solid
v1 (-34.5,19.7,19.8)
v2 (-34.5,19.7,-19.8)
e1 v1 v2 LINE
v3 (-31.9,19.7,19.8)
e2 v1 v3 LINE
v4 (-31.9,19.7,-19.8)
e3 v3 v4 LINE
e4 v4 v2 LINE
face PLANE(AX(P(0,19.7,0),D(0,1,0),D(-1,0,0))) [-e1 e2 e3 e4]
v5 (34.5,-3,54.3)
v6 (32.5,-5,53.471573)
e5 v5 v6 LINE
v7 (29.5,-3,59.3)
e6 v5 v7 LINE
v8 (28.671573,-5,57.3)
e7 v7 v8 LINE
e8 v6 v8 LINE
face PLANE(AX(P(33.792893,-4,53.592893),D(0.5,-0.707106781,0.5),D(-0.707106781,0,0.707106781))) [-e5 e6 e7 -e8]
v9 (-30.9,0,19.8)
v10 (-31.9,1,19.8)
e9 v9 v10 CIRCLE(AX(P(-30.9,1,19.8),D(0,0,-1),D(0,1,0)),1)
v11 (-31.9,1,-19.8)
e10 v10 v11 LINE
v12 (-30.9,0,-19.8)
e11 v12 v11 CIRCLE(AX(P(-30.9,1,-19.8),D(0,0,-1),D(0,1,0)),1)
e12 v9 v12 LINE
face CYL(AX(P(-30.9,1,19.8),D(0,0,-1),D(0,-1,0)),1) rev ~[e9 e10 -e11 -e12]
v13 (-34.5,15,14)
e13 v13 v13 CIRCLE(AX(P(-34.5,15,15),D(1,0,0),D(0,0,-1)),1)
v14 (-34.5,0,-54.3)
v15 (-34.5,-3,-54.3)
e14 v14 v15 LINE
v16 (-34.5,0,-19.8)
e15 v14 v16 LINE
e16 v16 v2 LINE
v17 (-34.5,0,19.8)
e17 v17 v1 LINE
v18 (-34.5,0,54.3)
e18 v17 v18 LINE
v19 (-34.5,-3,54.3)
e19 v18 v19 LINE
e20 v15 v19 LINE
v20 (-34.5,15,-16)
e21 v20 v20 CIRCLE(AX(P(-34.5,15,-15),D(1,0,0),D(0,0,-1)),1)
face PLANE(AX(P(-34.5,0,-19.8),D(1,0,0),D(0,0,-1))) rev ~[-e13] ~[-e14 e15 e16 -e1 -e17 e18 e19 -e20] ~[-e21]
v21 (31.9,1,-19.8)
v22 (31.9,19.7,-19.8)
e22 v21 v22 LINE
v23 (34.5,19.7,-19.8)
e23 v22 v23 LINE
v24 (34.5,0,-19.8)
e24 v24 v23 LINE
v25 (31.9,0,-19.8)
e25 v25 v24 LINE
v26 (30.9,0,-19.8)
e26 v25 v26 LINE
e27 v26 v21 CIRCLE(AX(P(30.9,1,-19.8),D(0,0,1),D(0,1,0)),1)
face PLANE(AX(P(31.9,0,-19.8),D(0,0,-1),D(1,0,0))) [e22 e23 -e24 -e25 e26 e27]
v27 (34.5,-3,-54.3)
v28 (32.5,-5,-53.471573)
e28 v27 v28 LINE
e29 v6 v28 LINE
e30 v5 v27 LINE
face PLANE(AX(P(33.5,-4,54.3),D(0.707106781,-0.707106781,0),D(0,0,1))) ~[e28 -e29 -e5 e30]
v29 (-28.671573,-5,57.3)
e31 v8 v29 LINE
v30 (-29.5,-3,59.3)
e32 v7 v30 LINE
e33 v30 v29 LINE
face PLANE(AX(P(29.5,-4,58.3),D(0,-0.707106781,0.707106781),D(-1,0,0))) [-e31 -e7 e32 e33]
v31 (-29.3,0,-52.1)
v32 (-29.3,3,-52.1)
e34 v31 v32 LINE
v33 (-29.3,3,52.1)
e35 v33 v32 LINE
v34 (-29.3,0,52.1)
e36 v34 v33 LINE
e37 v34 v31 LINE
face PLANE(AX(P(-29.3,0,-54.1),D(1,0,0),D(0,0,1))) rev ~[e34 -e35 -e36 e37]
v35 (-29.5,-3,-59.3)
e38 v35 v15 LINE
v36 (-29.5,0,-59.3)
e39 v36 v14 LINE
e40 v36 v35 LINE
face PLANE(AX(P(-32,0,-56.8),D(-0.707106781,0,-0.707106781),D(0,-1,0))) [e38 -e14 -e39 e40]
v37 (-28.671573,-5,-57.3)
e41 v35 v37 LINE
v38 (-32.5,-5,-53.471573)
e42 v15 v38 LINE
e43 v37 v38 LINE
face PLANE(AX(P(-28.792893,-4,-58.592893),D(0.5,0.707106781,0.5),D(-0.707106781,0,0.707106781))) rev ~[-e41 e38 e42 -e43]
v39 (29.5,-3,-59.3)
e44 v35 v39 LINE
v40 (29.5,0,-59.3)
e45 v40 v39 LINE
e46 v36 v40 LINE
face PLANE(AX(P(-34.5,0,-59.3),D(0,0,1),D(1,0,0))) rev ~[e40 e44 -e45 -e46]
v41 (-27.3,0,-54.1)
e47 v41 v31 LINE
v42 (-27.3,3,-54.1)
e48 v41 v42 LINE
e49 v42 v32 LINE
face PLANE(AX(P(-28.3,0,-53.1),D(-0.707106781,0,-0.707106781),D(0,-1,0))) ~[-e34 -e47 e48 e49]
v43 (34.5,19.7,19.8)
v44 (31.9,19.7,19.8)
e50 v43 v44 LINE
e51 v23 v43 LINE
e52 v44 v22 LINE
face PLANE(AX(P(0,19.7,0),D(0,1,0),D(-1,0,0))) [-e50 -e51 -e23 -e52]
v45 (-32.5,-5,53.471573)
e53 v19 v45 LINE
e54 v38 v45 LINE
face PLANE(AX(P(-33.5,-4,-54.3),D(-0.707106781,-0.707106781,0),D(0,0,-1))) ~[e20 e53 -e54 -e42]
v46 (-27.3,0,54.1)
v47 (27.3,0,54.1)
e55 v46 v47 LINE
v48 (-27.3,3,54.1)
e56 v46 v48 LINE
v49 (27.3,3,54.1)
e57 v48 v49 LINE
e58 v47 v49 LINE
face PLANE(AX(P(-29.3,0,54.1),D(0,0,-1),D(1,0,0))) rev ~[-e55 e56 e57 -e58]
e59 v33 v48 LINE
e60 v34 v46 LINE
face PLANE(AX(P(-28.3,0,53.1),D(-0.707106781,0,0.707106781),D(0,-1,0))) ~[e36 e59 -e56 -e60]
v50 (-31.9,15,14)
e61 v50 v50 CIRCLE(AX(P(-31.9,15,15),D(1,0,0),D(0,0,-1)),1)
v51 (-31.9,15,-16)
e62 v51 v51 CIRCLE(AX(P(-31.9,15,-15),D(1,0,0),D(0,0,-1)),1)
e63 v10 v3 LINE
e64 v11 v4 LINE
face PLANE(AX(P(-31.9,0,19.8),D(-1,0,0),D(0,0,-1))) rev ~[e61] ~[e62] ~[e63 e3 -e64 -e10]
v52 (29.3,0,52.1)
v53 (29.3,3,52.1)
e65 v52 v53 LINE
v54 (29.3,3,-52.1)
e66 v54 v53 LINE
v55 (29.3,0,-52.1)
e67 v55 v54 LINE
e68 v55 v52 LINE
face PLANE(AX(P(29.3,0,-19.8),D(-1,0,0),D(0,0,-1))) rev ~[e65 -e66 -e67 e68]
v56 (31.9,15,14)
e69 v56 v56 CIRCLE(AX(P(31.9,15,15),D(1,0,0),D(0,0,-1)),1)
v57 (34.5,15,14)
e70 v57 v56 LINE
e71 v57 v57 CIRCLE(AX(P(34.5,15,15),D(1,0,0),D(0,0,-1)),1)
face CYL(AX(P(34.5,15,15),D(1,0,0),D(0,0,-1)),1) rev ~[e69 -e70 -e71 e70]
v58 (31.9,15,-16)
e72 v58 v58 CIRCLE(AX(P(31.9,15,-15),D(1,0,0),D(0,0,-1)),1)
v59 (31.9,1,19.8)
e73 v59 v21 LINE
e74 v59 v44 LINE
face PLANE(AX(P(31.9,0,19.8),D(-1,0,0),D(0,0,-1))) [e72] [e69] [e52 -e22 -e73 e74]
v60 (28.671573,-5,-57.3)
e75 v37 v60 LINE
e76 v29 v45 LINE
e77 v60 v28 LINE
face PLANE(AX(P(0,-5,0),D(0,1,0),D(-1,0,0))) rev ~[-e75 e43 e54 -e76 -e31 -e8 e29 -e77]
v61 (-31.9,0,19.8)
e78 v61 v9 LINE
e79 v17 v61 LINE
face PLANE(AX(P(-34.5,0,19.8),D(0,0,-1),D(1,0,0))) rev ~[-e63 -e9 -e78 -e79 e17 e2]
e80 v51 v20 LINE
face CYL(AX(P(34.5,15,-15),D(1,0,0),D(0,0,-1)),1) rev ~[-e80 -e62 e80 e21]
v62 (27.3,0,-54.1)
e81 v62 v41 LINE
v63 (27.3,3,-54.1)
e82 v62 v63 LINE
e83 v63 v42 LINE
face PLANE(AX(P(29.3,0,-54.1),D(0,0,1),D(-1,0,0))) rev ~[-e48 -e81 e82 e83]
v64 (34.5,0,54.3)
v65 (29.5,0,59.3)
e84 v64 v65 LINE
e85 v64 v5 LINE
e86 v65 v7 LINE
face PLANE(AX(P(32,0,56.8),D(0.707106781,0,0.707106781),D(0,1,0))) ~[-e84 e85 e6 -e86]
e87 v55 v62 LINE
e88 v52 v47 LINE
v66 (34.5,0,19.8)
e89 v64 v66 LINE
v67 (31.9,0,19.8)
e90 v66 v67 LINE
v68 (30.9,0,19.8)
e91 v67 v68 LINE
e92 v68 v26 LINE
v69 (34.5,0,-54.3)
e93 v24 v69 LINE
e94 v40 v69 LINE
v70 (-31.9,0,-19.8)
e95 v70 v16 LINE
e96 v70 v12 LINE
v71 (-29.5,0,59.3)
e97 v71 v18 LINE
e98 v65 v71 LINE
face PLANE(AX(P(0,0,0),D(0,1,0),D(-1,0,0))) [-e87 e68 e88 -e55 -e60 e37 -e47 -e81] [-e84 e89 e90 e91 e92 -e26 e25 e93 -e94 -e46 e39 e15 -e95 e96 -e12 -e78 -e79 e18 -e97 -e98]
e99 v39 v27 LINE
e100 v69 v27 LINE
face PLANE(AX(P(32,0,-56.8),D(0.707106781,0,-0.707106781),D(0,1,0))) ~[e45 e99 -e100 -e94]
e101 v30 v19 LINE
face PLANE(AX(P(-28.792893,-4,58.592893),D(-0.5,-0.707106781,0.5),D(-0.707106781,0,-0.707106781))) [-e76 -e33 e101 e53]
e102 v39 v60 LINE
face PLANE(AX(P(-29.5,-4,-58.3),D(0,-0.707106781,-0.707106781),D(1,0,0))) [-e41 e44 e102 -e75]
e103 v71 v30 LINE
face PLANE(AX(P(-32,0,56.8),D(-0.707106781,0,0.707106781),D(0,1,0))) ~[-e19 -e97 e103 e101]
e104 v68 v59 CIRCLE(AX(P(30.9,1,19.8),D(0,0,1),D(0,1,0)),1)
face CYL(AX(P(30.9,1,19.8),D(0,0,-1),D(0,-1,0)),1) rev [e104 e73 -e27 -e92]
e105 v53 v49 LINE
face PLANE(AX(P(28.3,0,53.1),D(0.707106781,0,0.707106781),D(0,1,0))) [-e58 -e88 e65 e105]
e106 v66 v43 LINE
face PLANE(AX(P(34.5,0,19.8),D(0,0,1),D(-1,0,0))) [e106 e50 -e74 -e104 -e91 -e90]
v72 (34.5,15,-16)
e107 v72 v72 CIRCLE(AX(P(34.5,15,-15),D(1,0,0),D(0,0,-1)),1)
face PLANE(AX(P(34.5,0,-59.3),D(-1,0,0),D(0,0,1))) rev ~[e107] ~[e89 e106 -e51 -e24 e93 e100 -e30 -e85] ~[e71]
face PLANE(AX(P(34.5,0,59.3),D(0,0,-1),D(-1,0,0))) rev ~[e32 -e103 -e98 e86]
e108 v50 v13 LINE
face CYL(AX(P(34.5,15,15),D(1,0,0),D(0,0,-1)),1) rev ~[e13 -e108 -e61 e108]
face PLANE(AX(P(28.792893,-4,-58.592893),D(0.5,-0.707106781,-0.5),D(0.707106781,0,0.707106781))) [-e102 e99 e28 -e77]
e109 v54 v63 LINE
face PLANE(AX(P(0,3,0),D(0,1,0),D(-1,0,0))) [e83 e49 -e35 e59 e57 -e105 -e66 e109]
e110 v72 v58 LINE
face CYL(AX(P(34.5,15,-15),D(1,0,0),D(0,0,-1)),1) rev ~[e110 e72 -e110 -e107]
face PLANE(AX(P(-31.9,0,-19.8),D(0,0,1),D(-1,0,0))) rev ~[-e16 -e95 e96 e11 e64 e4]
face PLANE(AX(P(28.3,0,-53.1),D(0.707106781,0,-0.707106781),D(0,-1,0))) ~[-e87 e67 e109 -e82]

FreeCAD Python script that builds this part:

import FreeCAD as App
import Part
import Sketcher
Q = App.Units.Quantity


def edges_at(feature, points):
    """Names of the edges that pass closest to the given points."""
    edges = feature.Shape.Edges
    near = lambda p: min(range(len(edges)), key=lambda i: edges[i].distToShape(Part.Vertex(*p))[0])
    return sorted({f"Edge{near(p) + 1}" for p in points})

doc = App.newDocument("Part")
body = doc.addObject("PartDesign::Body", "Body")

# Sketch on XZ plane
sketch1 = body.newObject("Sketcher::SketchObject", "Sketch")
sketch1.AttachmentSupport = (doc.getObject("XZ_Plane"), [""])
sketch1.MapMode = "FlatFace"
sketch1.addGeometry([
    Part.LineSegment(App.Vector(-34, -59, 0), App.Vector(-34, 59, 0)),
    Part.LineSegment(App.Vector(-34, 59, 0), App.Vector(34, 59, 0)),
    Part.LineSegment(App.Vector(34, 59, 0), App.Vector(34, -59, 0)),
    Part.LineSegment(App.Vector(34, -59, 0), App.Vector(-34, -59, 0)),
], False)
sketch1.addConstraint([
    Sketcher.Constraint("Coincident", 0, 2, 1, 1),
    Sketcher.Constraint("Coincident", 1, 2, 2, 1),
    Sketcher.Constraint("Coincident", 2, 2, 3, 1),
    Sketcher.Constraint("Coincident", 3, 2, 0, 1),
    Sketcher.Constraint("Vertical", 0),
    Sketcher.Constraint("Horizontal", 1),
    Sketcher.Constraint("Vertical", 2),
    Sketcher.Constraint("Horizontal", 3),
    Sketcher.Constraint("Symmetric", 0, 2, 2, 2, -1, 1),
    Sketcher.Constraint("DistanceX", 1, 1, 1, 2, Q("69 mm")),
    Sketcher.Constraint("DistanceY", 0, 1, 0, 2, Q("118.6 mm")),
])
pad1 = body.newObject("PartDesign::Pad", "Pad")
pad1.Profile = sketch1
pad1.Length = 5

# Sketch on XZ plane
sketch2 = body.newObject("Sketcher::SketchObject", "Sketch001")
sketch2.AttachmentSupport = (doc.getObject("XZ_Plane"), [""])
sketch2.MapMode = "FlatFace"
sketch2.addGeometry([
    Part.LineSegment(App.Vector(34.5, -19.8, 0), App.Vector(31.9, -19.8, 0)),  # 0
    Part.LineSegment(App.Vector(31.9, -19.8, 0), App.Vector(31.9, 19.8, 0)),  # 1
    Part.LineSegment(App.Vector(31.9, 19.8, 0), App.Vector(34.5, 19.8, 0)),  # 2
    Part.LineSegment(App.Vector(34.5, 19.8, 0), App.Vector(34.5, -19.8, 0)),  # 3
    Part.LineSegment(App.Vector(-31.9, 19.8, 0), App.Vector(-31.9, -19.8, 0)),  # 4
    Part.LineSegment(App.Vector(-31.9, -19.8, 0), App.Vector(-34.5, -19.8, 0)),  # 5
    Part.LineSegment(App.Vector(-34.5, -19.8, 0), App.Vector(-34.5, 19.8, 0)),  # 6
    Part.LineSegment(App.Vector(-34.5, 19.8, 0), App.Vector(-31.9, 19.8, 0)),  # 7
], False)
sketch2.addConstraint([
    Sketcher.Constraint("Coincident", 0, 2, 1, 1),
    Sketcher.Constraint("Coincident", 1, 2, 2, 1),
    Sketcher.Constraint("Coincident", 2, 2, 3, 1),
    Sketcher.Constraint("Coincident", 3, 2, 0, 1),
    Sketcher.Constraint("Coincident", 4, 2, 5, 1),
    Sketcher.Constraint("Coincident", 5, 2, 6, 1),
    Sketcher.Constraint("Coincident", 6, 2, 7, 1),
    Sketcher.Constraint("Coincident", 7, 2, 4, 1),
    Sketcher.Constraint("Horizontal", 0),
    Sketcher.Constraint("Vertical", 1),
    Sketcher.Constraint("Horizontal", 2),
    Sketcher.Constraint("Vertical", 3),
    Sketcher.Constraint("Vertical", 4),
    Sketcher.Constraint("Horizontal", 5),
    Sketcher.Constraint("Vertical", 6),
    Sketcher.Constraint("Horizontal", 7),
    Sketcher.Constraint("Symmetric", 1, 2, 4, 2, -1, 1),
    Sketcher.Constraint("Symmetric", 3, 2, 6, 2, -1, 1),
    Sketcher.Constraint("Horizontal", 3, 2, 4, 2),
    Sketcher.Constraint("DistanceY", 1, 1, 1, 2, Q("39.6 mm")),
    Sketcher.Constraint("DistanceX", 0, 2, 0, 1, Q("2.6 mm")),
    Sketcher.Constraint("DistanceX", 5, 2, 3, 2, Q("69 mm")),
])
pad2 = body.newObject("PartDesign::Pad", "Pad001")
pad2.Profile = sketch2
pad2.Length = 19.7
pad2.Reversed = True
doc.recompute()

chamfer = body.newObject("PartDesign::Chamfer", "Chamfer")
chamfer.Base = (pad2, edges_at(pad2, [
    (-34.5, -2.5, 59.3),
    (34.5, -2.5, 59.3),
    (34.5, -2.5, -59.3),
    (-34.5, -2.5, -59.3),
]))
chamfer.Size = 5

# Sketch on YZ plane
sketch3 = body.newObject("Sketcher::SketchObject", "Sketch002")
sketch3.AttachmentSupport = (doc.getObject("YZ_Plane"), [""])
sketch3.MapMode = "FlatFace"
sketch3.AttachmentOffset = App.Placement(App.Vector(0, 0, 34.5), App.Rotation())
sketch3.addGeometry([
    Part.Circle(App.Vector(15, -15, 0), App.Vector(0, 0, 1), 1),
    Part.Circle(App.Vector(15, 15, 0), App.Vector(0, 0, 1), 1),
], False)
sketch3.addConstraint([
    Sketcher.Constraint("Equal", 0, 1),
    Sketcher.Constraint("Symmetric", 0, 3, 1, 3, -1),
    Sketcher.Constraint("Diameter", 0, Q("2 mm")),
    Sketcher.Constraint("DistanceX", -1, 1, 0, 3, Q("15 mm")),
    Sketcher.Constraint("DistanceY", 0, 3, -1, 1, Q("15 mm")),
])
pocket1 = body.newObject("PartDesign::Pocket", "Pocket")
pocket1.Profile = sketch3
pocket1.Length = 69

# Sketch on XZ plane
sketch4 = body.newObject("Sketcher::SketchObject", "Sketch003")
sketch4.AttachmentSupport = (doc.getObject("XZ_Plane"), [""])
sketch4.MapMode = "FlatFace"
sketch4.addGeometry([
    Part.LineSegment(App.Vector(29, 54, 0), App.Vector(29, -54, 0)),
    Part.LineSegment(App.Vector(29, -54, 0), App.Vector(-29, -54, 0)),
    Part.LineSegment(App.Vector(-29, -54, 0), App.Vector(-29, 54, 0)),
    Part.LineSegment(App.Vector(-29, 54, 0), App.Vector(29, 54, 0)),
], False)
sketch4.addConstraint([
    Sketcher.Constraint("Coincident", 0, 2, 1, 1),
    Sketcher.Constraint("Coincident", 1, 2, 2, 1),
    Sketcher.Constraint("Coincident", 2, 2, 3, 1),
    Sketcher.Constraint("Coincident", 3, 2, 0, 1),
    Sketcher.Constraint("Vertical", 0),
    Sketcher.Constraint("Horizontal", 1),
    Sketcher.Constraint("Vertical", 2),
    Sketcher.Constraint("Horizontal", 3),
    Sketcher.Constraint("Symmetric", 0, 2, 2, 2, -1, 1),
    Sketcher.Constraint("DistanceX", 1, 2, 1, 1, Q("58.6 mm")),
    Sketcher.Constraint("DistanceY", 0, 2, 0, 1, Q("108.2 mm")),
])
pad3 = body.newObject("PartDesign::Pad", "Pad002")
pad3.Profile = sketch4
pad3.Length = 3
pad3.Reversed = True
doc.recompute()

chamfer2 = body.newObject("PartDesign::Chamfer", "Chamfer001")
chamfer2.Base = (pad3, edges_at(pad3, [
    (-29.3, 1.5, -54.1),
    (-29.3, 1.5, 54.1),
    (29.3, 1.5, -54.1),
    (29.3, 1.5, 54.1),
]))
chamfer2.Size = 2
doc.recompute()

chamfer3 = body.newObject("PartDesign::Chamfer", "Chamfer002")
chamfer3.Base = (chamfer2, edges_at(chamfer2, [
    (34.5, -5, 0),
    (32, -5, -56.8),
    (0, -5, -59.3),
    (-34.5, -5, 0),
    (-32, -5, -56.8),
    (32, -5, 56.8),
    (0, -5, 59.3),
    (-32, -5, 56.8),
]))
chamfer3.Size = 2
doc.recompute()

fillet = body.newObject("PartDesign::Fillet", "Fillet")
fillet.Base = (chamfer3, edges_at(chamfer3, [(31.9, 0, 0), (-31.9, 0, 0)]))
fillet.Radius = 1

doc.recompute()
